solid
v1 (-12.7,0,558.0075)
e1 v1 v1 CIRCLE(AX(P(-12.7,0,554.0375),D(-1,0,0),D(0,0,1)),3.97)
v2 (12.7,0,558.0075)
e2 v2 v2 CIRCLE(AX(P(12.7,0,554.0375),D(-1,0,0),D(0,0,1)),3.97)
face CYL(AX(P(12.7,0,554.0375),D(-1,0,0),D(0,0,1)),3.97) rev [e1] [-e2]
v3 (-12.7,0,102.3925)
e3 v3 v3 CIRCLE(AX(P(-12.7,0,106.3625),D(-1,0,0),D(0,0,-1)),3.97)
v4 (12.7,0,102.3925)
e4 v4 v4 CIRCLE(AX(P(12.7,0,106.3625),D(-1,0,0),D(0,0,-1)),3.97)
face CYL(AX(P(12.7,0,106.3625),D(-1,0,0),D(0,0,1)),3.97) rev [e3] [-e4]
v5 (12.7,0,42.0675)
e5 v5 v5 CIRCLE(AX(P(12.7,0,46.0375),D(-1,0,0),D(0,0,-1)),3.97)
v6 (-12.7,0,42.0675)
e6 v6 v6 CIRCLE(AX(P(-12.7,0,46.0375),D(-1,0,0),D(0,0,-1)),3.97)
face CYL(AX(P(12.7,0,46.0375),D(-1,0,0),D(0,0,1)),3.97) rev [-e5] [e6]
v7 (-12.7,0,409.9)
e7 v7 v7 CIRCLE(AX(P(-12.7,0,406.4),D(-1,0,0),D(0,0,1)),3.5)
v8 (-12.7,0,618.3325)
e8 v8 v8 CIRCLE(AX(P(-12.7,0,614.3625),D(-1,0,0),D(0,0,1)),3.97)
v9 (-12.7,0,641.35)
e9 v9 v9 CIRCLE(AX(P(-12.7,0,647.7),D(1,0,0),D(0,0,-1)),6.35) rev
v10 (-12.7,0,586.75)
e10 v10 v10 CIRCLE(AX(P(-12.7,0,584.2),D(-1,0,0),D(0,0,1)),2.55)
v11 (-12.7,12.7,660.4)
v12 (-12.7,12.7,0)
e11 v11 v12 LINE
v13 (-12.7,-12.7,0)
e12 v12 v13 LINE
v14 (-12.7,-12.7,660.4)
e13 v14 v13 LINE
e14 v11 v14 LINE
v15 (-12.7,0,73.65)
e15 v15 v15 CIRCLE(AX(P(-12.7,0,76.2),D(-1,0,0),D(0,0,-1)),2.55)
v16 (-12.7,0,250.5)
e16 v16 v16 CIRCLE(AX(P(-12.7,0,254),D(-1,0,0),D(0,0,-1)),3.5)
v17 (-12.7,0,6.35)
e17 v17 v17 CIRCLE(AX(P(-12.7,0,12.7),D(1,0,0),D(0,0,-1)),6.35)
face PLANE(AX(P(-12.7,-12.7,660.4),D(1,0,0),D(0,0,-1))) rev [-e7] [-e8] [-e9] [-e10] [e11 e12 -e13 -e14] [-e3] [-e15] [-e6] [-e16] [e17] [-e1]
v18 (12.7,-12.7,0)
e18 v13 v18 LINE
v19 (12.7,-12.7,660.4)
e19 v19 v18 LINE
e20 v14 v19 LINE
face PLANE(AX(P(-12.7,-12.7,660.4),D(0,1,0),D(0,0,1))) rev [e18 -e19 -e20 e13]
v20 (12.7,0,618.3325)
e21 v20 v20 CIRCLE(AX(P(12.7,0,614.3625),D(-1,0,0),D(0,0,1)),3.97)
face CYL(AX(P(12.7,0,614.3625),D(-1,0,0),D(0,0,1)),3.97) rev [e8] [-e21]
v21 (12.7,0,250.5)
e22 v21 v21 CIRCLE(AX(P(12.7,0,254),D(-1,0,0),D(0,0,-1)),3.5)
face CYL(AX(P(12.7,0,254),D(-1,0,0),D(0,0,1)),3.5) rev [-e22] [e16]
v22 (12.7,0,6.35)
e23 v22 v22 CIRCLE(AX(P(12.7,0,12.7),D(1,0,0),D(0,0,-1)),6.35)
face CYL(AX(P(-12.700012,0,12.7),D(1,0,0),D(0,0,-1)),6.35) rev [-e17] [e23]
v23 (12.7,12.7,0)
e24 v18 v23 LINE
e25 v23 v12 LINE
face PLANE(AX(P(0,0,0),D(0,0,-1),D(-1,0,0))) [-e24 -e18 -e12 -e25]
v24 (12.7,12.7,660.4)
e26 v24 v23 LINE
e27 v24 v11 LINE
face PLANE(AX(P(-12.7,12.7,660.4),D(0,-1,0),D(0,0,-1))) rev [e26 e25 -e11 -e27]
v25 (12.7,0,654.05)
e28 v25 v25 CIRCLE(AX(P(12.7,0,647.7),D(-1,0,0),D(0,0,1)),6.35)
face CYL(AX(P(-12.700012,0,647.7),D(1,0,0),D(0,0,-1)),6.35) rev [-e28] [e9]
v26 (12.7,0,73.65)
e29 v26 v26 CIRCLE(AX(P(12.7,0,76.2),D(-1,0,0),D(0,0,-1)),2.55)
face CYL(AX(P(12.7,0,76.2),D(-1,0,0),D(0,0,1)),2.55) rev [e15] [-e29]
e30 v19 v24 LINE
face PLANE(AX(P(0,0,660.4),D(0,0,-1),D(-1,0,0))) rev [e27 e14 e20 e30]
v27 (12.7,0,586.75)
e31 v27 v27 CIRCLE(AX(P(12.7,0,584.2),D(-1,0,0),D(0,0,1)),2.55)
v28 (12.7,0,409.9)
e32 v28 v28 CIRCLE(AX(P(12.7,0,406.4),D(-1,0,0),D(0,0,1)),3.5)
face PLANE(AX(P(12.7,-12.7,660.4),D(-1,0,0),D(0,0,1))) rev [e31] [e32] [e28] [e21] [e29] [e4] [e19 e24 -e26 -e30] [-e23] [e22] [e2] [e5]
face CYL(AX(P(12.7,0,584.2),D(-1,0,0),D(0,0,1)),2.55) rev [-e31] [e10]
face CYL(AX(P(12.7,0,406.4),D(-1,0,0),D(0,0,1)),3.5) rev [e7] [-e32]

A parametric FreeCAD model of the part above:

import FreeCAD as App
import Part
import Sketcher
Q = App.Units.Quantity

doc = App.newDocument("Part")
body = doc.addObject("PartDesign::Body", "Body")

# Sketch on XY plane
sketch1 = body.newObject("Sketcher::SketchObject", "Sketch")
sketch1.AttachmentSupport = (doc.getObject("XY_Plane"), [""])
sketch1.MapMode = "FlatFace"
sketch1.addGeometry([
    Part.LineSegment(App.Vector(-12.7, 12.7, 0), App.Vector(-12.7, -12.7, 0)),
    Part.LineSegment(App.Vector(-12.7, -12.7, 0), App.Vector(12.7, -12.7, 0)),
    Part.LineSegment(App.Vector(12.7, -12.7, 0), App.Vector(12.7, 12.7, 0)),
    Part.LineSegment(App.Vector(12.7, 12.7, 0), App.Vector(-12.7, 12.7, 0)),
], False)
sketch1.addConstraint([
    Sketcher.Constraint("Coincident", 0, 2, 1, 1),
    Sketcher.Constraint("Coincident", 1, 2, 2, 1),
    Sketcher.Constraint("Coincident", 2, 2, 3, 1),
    Sketcher.Constraint("Coincident", 3, 2, 0, 1),
    Sketcher.Constraint("Vertical", 0),
    Sketcher.Constraint("Horizontal", 1),
    Sketcher.Constraint("Vertical", 2),
    Sketcher.Constraint("Horizontal", 3),
    Sketcher.Constraint("Symmetric", 0, 2, 2, 2, -1, 1),
    Sketcher.Constraint("Equal", 3, 0),
    Sketcher.Constraint("DistanceX", 1, 1, 1, 2, Q("25.4 mm")),
])
pad1 = body.newObject("PartDesign::Pad", "Pad")
pad1.Profile = sketch1
pad1.Length = 660.4

# Sketch on YZ plane
sketch2 = body.newObject("Sketcher::SketchObject", "Sketch001")
sketch2.AttachmentSupport = (doc.getObject("YZ_Plane"), [""])
sketch2.MapMode = "FlatFace"
sketch2.AttachmentOffset = App.Placement(App.Vector(0, 0, -12.7), App.Rotation())
sketch2.addGeometry([
    Part.Circle(App.Vector(0, 12.7, 0), App.Vector(0, 0, 1), 6.35),
    Part.Circle(App.Vector(0, 647.7, 0), App.Vector(0, 0, 1), 6.35),
], False)
sketch2.addConstraint([
    Sketcher.Constraint("Equal", 0, 1),
    Sketcher.Constraint("PointOnObject", 0, 3, -2),
    Sketcher.Constraint("PointOnObject", 1, 3, -2),
    Sketcher.Constraint("Diameter", 0, Q("12.7 mm")),
    Sketcher.Constraint("DistanceY", 0, 3, 1, 3, Q("635 mm")),
    Sketcher.Constraint("DistanceY", -1, 1, 0, 3, Q("12.7 mm")),
])
pocket1 = body.newObject("PartDesign::Pocket", "Pocket")
pocket1.Profile = sketch2
pocket1.Type = "ThroughAll"
pocket1.Midplane = True

# Sketch on YZ plane
sketch3 = body.newObject("Sketcher::SketchObject", "Sketch002")
sketch3.AttachmentSupport = (doc.getObject("YZ_Plane"), [""])
sketch3.MapMode = "FlatFace"
sketch3.AttachmentOffset = App.Placement(App.Vector(0, 0, -12.7), App.Rotation())
sketch3.addGeometry([
    Part.Circle(App.Vector(0, 554.0375, 0), App.Vector(0, 0, 1), 3.97),  # 0
    Part.Circle(App.Vector(0, 106.3625, 0), App.Vector(0, 0, 1), 3.97),  # 1
    Part.Circle(App.Vector(0, 614.3625, 0), App.Vector(0, 0, 1), 3.97),  # 2
    Part.Circle(App.Vector(0, 584.2, 0), App.Vector(0, 0, 1), 2.55),  # 3
    Part.Circle(App.Vector(0, 46.0375, 0), App.Vector(0, 0, 1), 3.97),  # 4
    Part.Circle(App.Vector(0, 76.2, 0), App.Vector(0, 0, 1), 2.55),  # 5
], False)
sketch3.addConstraint([
    Sketcher.Constraint("Equal", 0, 1),
    Sketcher.Constraint("Equal", 1, 2),
    Sketcher.Constraint("Equal", 2, 4),
    Sketcher.Constraint("Equal", 3, 5),
    Sketcher.Constraint("PointOnObject", 0, 3, -2),
    Sketcher.Constraint("PointOnObject", 1, 3, -2),
    Sketcher.Constraint("PointOnObject", 2, 3, -2),
    Sketcher.Constraint("PointOnObject", 3, 3, -2),
    Sketcher.Constraint("PointOnObject", 4, 3, -2),
    Sketcher.Constraint("PointOnObject", 5, 3, -2),
    Sketcher.Constraint("Diameter", 3, Q("5.1 mm")),
    Sketcher.Constraint("Diameter", 0, Q("7.94 mm")),
    Sketcher.Constraint("DistanceY", 1, 3, 2, 3, Q("508 mm")),
    Sketcher.Constraint("DistanceY", 4, 3, 0, 3, Q("508 mm")),
    Sketcher.Constraint("DistanceY", 5, 3, 3, 3, Q("508 mm")),
    Sketcher.Constraint("DistanceY", -1, 1, 3, 3, Q("584.2 mm")),
    Sketcher.Constraint("DistanceY", 1, 3, 0, 3, Q("447.675 mm")),
    Sketcher.Constraint("DistanceY", -1, 1, 0, 3, Q("554.0375 mm")),
])
pocket2 = body.newObject("PartDesign::Pocket", "Pocket001")
pocket2.Profile = sketch3
pocket2.Type = "ThroughAll"
pocket2.Reversed = True

# Sketch on YZ plane
sketch4 = body.newObject("Sketcher::SketchObject", "Sketch003")
sketch4.AttachmentSupport = (doc.getObject("YZ_Plane"), [""])
sketch4.MapMode = "FlatFace"
sketch4.AttachmentOffset = App.Placement(App.Vector(0, 0, -12.7), App.Rotation())
sketch4.addGeometry([
    Part.Circle(App.Vector(0, 406.4, 0), App.Vector(0, 0, 1), 3.5),
    Part.Circle(App.Vector(0, 254, 0), App.Vector(0, 0, 1), 3.5),
], False)
sketch4.addConstraint([
    Sketcher.Constraint("Equal", 0, 1),
    Sketcher.Constraint("PointOnObject", 0, 3, -2),
    Sketcher.Constraint("PointOnObject", 1, 3, -2),
    Sketcher.Constraint("Diameter", 0, Q("7 mm")),
    Sketcher.Constraint("DistanceY", -1, 1, 1, 3, Q("254 mm")),
    Sketcher.Constraint("DistanceY", -1, 1, 0, 3, Q("406.4 mm")),
])
pocket3 = body.newObject("PartDesign::Pocket", "Pocket002")
pocket3.Profile = sketch4
pocket3.Type = "ThroughAll"
pocket3.Reversed = True

doc.recompute()
